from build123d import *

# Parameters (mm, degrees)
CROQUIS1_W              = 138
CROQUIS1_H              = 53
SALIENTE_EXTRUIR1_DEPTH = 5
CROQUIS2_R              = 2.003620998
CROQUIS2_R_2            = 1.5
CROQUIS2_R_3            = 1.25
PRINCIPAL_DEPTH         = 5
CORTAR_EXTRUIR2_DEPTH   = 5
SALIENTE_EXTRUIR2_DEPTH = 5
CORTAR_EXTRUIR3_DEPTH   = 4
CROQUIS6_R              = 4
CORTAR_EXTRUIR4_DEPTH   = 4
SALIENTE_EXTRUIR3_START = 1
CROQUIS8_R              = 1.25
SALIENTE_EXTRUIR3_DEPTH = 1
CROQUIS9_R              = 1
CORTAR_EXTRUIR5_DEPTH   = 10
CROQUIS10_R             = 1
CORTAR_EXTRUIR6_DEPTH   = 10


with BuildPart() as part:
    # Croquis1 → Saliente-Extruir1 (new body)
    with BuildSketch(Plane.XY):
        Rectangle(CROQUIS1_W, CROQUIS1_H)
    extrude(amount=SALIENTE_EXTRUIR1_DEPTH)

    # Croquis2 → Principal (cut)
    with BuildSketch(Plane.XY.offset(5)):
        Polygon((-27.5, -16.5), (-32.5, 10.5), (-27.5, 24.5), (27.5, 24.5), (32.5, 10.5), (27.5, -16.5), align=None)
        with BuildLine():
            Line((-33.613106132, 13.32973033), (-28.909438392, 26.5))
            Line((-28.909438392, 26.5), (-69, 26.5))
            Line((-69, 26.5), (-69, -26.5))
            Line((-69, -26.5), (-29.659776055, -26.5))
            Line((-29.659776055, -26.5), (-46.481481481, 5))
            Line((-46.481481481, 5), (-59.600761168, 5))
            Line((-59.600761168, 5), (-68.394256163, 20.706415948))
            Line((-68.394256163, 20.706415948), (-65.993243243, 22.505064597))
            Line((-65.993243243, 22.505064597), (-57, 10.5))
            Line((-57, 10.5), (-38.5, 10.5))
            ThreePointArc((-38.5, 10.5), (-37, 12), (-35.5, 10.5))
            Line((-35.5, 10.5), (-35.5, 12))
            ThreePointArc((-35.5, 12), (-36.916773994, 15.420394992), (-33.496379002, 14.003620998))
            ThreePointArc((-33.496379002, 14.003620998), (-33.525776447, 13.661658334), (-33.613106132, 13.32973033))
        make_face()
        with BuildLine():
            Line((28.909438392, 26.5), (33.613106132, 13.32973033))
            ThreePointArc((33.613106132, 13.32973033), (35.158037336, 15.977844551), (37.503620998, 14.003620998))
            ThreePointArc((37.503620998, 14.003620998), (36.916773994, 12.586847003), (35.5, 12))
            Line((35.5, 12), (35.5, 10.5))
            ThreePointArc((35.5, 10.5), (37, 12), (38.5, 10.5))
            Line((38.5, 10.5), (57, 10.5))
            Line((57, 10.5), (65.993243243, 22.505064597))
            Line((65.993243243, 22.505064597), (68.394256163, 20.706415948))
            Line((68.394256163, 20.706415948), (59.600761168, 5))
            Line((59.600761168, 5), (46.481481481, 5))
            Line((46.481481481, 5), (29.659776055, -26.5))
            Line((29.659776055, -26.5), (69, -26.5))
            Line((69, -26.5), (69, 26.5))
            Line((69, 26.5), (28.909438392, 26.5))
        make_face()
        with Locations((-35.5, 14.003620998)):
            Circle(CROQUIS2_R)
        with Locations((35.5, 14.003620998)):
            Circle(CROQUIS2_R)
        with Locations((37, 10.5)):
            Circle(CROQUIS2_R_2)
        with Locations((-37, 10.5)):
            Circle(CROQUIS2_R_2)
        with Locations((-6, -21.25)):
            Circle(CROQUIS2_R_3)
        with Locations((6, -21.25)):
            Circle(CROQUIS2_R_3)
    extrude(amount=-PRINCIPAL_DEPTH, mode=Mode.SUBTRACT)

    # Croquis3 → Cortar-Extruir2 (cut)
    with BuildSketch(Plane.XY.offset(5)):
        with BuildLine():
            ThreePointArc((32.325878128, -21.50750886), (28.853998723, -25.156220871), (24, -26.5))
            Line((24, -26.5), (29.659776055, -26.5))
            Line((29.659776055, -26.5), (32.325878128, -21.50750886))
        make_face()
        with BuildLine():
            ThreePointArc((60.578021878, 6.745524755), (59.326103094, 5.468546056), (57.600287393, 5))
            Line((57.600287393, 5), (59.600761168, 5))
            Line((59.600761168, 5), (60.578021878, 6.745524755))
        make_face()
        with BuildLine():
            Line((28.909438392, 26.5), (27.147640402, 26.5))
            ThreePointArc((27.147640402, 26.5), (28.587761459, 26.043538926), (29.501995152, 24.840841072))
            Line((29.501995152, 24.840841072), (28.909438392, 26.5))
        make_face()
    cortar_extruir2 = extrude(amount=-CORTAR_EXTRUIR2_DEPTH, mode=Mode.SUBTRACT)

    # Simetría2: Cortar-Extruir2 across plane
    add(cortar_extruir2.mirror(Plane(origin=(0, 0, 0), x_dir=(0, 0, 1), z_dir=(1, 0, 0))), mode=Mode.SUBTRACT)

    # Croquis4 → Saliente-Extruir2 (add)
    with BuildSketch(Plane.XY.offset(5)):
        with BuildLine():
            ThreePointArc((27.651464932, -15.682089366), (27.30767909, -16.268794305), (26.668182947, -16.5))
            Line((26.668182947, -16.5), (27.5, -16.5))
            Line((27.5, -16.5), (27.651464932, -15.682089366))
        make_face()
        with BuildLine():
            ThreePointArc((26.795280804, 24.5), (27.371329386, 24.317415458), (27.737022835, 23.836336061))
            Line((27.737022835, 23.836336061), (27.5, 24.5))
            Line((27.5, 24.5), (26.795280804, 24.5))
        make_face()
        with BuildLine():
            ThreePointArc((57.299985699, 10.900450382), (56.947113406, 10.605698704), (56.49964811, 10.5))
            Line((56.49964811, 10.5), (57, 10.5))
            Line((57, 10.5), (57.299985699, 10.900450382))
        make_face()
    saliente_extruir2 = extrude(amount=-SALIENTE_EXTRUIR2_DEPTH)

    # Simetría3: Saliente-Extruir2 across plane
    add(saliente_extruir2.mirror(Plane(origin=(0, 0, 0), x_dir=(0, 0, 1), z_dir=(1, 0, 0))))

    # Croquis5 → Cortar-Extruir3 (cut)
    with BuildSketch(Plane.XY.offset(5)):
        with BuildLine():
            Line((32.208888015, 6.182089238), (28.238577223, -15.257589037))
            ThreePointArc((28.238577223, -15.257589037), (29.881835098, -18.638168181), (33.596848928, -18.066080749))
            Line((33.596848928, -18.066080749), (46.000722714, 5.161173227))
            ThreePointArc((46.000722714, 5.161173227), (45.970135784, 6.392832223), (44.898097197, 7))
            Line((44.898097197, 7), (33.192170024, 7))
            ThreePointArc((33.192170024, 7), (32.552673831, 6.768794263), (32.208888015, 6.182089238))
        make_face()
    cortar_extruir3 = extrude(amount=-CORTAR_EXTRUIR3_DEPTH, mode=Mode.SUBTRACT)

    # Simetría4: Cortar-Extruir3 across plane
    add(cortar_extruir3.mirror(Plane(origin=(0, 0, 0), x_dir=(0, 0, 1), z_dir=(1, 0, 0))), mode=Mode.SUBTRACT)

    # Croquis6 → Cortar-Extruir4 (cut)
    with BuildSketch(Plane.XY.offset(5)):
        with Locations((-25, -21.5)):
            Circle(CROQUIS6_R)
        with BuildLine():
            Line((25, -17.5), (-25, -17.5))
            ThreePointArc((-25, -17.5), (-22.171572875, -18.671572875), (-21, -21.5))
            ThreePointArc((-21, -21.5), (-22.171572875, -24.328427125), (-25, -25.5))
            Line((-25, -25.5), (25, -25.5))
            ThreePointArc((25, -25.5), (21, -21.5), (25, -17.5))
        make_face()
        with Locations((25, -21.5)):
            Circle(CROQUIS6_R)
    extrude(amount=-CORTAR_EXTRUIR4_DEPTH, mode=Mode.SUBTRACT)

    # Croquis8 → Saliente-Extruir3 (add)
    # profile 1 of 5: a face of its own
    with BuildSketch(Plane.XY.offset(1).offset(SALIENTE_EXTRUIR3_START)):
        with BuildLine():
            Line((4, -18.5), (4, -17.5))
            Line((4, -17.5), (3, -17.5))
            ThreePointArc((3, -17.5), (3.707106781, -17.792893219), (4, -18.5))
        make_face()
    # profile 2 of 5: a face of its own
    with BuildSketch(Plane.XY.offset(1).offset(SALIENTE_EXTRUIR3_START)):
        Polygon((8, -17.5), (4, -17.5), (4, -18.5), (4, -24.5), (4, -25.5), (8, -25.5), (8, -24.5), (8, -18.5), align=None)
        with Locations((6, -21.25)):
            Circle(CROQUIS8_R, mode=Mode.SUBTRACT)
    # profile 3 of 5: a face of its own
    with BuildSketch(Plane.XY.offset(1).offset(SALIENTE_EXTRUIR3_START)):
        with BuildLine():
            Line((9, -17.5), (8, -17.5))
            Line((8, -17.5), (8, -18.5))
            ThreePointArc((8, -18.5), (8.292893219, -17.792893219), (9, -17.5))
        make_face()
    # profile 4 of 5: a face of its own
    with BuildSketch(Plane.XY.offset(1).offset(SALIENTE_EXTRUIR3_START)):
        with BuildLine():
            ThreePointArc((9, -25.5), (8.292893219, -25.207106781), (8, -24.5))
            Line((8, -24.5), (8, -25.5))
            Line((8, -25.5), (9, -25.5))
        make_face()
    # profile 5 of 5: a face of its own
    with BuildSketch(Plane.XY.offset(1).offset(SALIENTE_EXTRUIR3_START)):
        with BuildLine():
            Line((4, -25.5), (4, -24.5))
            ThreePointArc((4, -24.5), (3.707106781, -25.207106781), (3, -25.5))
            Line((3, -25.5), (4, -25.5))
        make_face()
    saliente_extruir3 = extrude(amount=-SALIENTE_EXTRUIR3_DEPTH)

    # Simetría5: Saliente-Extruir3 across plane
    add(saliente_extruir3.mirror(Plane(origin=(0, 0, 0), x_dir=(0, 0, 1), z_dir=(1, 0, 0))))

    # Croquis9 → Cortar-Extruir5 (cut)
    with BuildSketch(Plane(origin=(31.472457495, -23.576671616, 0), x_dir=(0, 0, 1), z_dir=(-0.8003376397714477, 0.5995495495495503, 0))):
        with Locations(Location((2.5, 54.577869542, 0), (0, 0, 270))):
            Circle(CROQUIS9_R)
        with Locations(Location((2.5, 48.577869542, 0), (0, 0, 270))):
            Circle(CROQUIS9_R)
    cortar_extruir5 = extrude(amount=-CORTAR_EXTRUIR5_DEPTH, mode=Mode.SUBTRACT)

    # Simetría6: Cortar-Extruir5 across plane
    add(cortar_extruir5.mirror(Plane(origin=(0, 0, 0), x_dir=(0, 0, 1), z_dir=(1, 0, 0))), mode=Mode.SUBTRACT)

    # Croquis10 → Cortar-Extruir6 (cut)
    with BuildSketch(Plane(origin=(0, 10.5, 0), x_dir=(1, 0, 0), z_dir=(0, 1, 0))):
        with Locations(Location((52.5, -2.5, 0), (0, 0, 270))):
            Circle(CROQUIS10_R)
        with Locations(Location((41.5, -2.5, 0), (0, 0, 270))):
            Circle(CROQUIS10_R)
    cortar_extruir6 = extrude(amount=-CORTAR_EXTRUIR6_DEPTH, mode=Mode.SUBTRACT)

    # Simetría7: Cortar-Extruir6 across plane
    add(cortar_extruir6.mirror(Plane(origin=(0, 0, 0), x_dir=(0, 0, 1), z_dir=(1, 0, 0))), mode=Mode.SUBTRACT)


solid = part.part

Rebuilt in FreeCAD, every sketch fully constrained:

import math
import FreeCAD as App
import Part
import Sketcher
Q = App.Units.Quantity


def add_polygon(sketch, points):
    """Adds a closed chain of lines whose ends are joined by coincident constraints."""
    first, n = sketch.GeometryCount, len(points)
    for a, b in zip(points, points[1:] + points[:1]):
        sketch.addGeometry(Part.LineSegment(App.Vector(*a, 0), App.Vector(*b, 0)), False)
    for i in range(n):
        sketch.addConstraint(Sketcher.Constraint("Coincident", first + i, 2, first + (i + 1) % n, 1))

doc = App.newDocument("Part")
params = doc.addObject("Spreadsheet::Sheet", "Params")
for row, (alias, value) in enumerate([
    ("sketch1_width", "138 mm"),
    ("sketch1_height", "53 mm"),
    ("pad1_length", "5 mm"),
    ("sketch2_diameter", "2.5 mm"),
    ("sketch2_radius", "1.5 mm"),
    ("sketch2_width", "55 mm"),
    ("sketch2_height", "53 mm"),
    ("sketch2_length", "3 mm"),
    ("pocket1_length", "5 mm"),
    ("sketch3_radius", "2.5 mm"),
    ("pocket2_length", "5 mm"),
    ("sketch4_radius", "1 mm"),
    ("pad2_length", "5 mm"),
    ("sketch5_radius", "1 mm"),
    ("sketch5_radius2", "1.25 mm"),
    ("pocket3_length", "4 mm"),
    ("sketch6_radius", "4 mm"),
    ("sketch6_width", "50 mm"),
    ("pocket4_length", "4 mm"),
    ("sketch7_radius", "1 mm"),
    ("sketch7_diameter", "2.5 mm"),
    ("sketch7_width", "6 mm"),
    ("pad3_length", "1 mm"),
    ("sketch8_diameter", "2 mm"),
    ("pocket5_length", "10 mm"),
    ("sketch9_diameter", "2 mm"),
    ("pocket6_length", "10 mm"),
], start=1):
    params.set(f"A{row}", alias)
    params.set(f"B{row}", "=" + value)
    params.setAlias(f"B{row}", alias)

body = doc.addObject("PartDesign::Body", "Body")

# Sketch on XY plane
sketch1 = body.newObject("Sketcher::SketchObject", "Sketch")
sketch1.AttachmentSupport = (doc.getObject("XY_Plane"), [""])
sketch1.MapMode = "FlatFace"
add_polygon(sketch1, [(-69, 26), (-69, -26), (69, -26), (69, 26)])  # lines 0-3
sketch1.addConstraint(Sketcher.Constraint("Vertical", 0))
sketch1.addConstraint(Sketcher.Constraint("Horizontal", 1))
sketch1.addConstraint(Sketcher.Constraint("Vertical", 2))
sketch1.addConstraint(Sketcher.Constraint("Horizontal", 3))
sketch1.addConstraint(Sketcher.Constraint("Symmetric", 0, 2, 2, 2, -1, 1))
sketch1.addConstraint(Sketcher.Constraint("DistanceX", 1, 1, 1, 2, Q("138 mm")))
sketch1.addConstraint(Sketcher.Constraint("DistanceY", 0, 2, 0, 1, Q("53 mm")))
sketch1.setExpression("Constraints[9]", "Params.sketch1_width")
sketch1.setExpression("Constraints[10]", "Params.sketch1_height")
pad1 = body.newObject("PartDesign::Pad", "Pad")
pad1.Profile = sketch1
pad1.setExpression("Length", "Params.pad1_length")

# Sketch on XY plane
sketch2 = body.newObject("Sketcher::SketchObject", "Sketch001")
sketch2.AttachmentSupport = (doc.getObject("XY_Plane"), [""])
sketch2.MapMode = "FlatFace"
sketch2.AttachmentOffset = App.Placement(App.Vector(0, 0, 5), App.Rotation())
add_polygon(sketch2, [(-32.5, 10.5), (-27.5, -16.5), (27.5, -16.5), (32.5, 10.5), (27.5, 24.5), (-27.5, 24.5)])  # lines 0-5
sketch2.addGeometry(Part.LineSegment(App.Vector(-33.6, 13.3, 0), App.Vector(-28.9, 26.5, 0)), False)  # 6
sketch2.addGeometry(Part.LineSegment(App.Vector(-28.9, 26.5, 0), App.Vector(-69, 26.5, 0)), False)  # 7
sketch2.addGeometry(Part.LineSegment(App.Vector(-69, 26.5, 0), App.Vector(-69, -26.5, 0)), False)  # 8
sketch2.addGeometry(Part.LineSegment(App.Vector(-69, -26.5, 0), App.Vector(-29.7, -26.5, 0)), False)  # 9
sketch2.addGeometry(Part.LineSegment(App.Vector(-29.7, -26.5, 0), App.Vector(-46.5, 5, 0)), False)  # 10
sketch2.addGeometry(Part.LineSegment(App.Vector(-46.5, 5, 0), App.Vector(-59.6, 5, 0)), False)  # 11
sketch2.addGeometry(Part.LineSegment(App.Vector(-59.6, 5, 0), App.Vector(-68.4, 20.7, 0)), False)  # 12
sketch2.addGeometry(Part.LineSegment(App.Vector(-68.4, 20.7, 0), App.Vector(-66, 22.5, 0)), False)  # 13
sketch2.addGeometry(Part.LineSegment(App.Vector(-66, 22.5, 0), App.Vector(-57, 10.5, 0)), False)  # 14
sketch2.addGeometry(Part.LineSegment(App.Vector(-57, 10.5, 0), App.Vector(-38.5, 10.5, 0)), False)  # 15
sketch2.addGeometry(Part.ArcOfCircle(Part.Circle(App.Vector(-37, 10.5, 0), App.Vector(0, 0, 1), 1.5), math.radians(180), math.radians(360)), False)  # 16
sketch2.addGeometry(Part.LineSegment(App.Vector(-35.5, 10.5, 0), App.Vector(-35.5, 12, 0)), False)  # 17
sketch2.addGeometry(Part.ArcOfCircle(Part.Circle(App.Vector(-35.5, 14, 0), App.Vector(0, 0, 1), 2), math.radians(-90), math.radians(-20)), False)  # 18
sketch2.addGeometry(Part.LineSegment(App.Vector(28.9, 26.5, 0), App.Vector(33.6, 13.3, 0)), False)  # 19
sketch2.addGeometry(Part.ArcOfCircle(Part.Circle(App.Vector(35.5, 14, 0), App.Vector(0, 0, 1), 2), math.radians(-160), math.radians(-90)), False)  # 20
sketch2.addGeometry(Part.LineSegment(App.Vector(35.5, 12, 0), App.Vector(35.5, 10.5, 0)), False)  # 21
sketch2.addGeometry(Part.ArcOfCircle(Part.Circle(App.Vector(37, 10.5, 0), App.Vector(0, 0, 1), 1.5), math.radians(180), math.radians(360)), False)  # 22
sketch2.addGeometry(Part.LineSegment(App.Vector(38.5, 10.5, 0), App.Vector(57, 10.5, 0)), False)  # 23
sketch2.addGeometry(Part.LineSegment(App.Vector(57, 10.5, 0), App.Vector(66, 22.5, 0)), False)  # 24
sketch2.addGeometry(Part.LineSegment(App.Vector(66, 22.5, 0), App.Vector(68.4, 20.7, 0)), False)  # 25
sketch2.addGeometry(Part.LineSegment(App.Vector(68.4, 20.7, 0), App.Vector(59.6, 5, 0)), False)  # 26
sketch2.addGeometry(Part.LineSegment(App.Vector(59.6, 5, 0), App.Vector(46.5, 5, 0)), False)  # 27
sketch2.addGeometry(Part.LineSegment(App.Vector(46.5, 5, 0), App.Vector(29.7, -26.5, 0)), False)  # 28
sketch2.addGeometry(Part.LineSegment(App.Vector(29.7, -26.5, 0), App.Vector(69, -26.5, 0)), False)  # 29
sketch2.addGeometry(Part.LineSegment(App.Vector(69, -26.5, 0), App.Vector(69, 26.5, 0)), False)  # 30
sketch2.addGeometry(Part.LineSegment(App.Vector(69, 26.5, 0), App.Vector(28.9, 26.5, 0)), False)  # 31
sketch2.addGeometry(Part.Circle(App.Vector(-6, -21.2, 0), App.Vector(0, 0, 1), 1.2), False)  # 32
sketch2.addGeometry(Part.Circle(App.Vector(6, -21.2, 0), App.Vector(0, 0, 1), 1.2), False)  # 33
sketch2.addConstraint(Sketcher.Constraint("Coincident", 6, 2, 7, 1))
sketch2.addConstraint(Sketcher.Constraint("Coincident", 7, 2, 8, 1))
sketch2.addConstraint(Sketcher.Constraint("Coincident", 8, 2, 9, 1))
sketch2.addConstraint(Sketcher.Constraint("Coincident", 9, 2, 10, 1))
sketch2.addConstraint(Sketcher.Constraint("Coincident", 10, 2, 11, 1))
sketch2.addConstraint(Sketcher.Constraint("Coincident", 11, 2, 12, 1))
sketch2.addConstraint(Sketcher.Constraint("Coincident", 12, 2, 13, 1))
sketch2.addConstraint(Sketcher.Constraint("Coincident", 13, 2, 14, 1))
sketch2.addConstraint(Sketcher.Constraint("Coincident", 14, 2, 15, 1))
sketch2.addConstraint(Sketcher.Constraint("Coincident", 15, 2, 16, 1))
sketch2.addConstraint(Sketcher.Constraint("Tangent", 16, 2, 17, 1))
sketch2.addConstraint(Sketcher.Constraint("Coincident", 17, 2, 18, 1))
sketch2.addConstraint(Sketcher.Constraint("Tangent", 18, 2, 6, 1))
sketch2.addConstraint(Sketcher.Constraint("Tangent", 19, 2, 20, 1))
sketch2.addConstraint(Sketcher.Constraint("Coincident", 20, 2, 21, 1))
sketch2.addConstraint(Sketcher.Constraint("Tangent", 21, 2, 22, 1))
sketch2.addConstraint(Sketcher.Constraint("Coincident", 22, 2, 23, 1))
sketch2.addConstraint(Sketcher.Constraint("Coincident", 23, 2, 24, 1))
sketch2.addConstraint(Sketcher.Constraint("Coincident", 24, 2, 25, 1))
sketch2.addConstraint(Sketcher.Constraint("Coincident", 25, 2, 26, 1))
sketch2.addConstraint(Sketcher.Constraint("Coincident", 26, 2, 27, 1))
sketch2.addConstraint(Sketcher.Constraint("Coincident", 27, 2, 28, 1))
sketch2.addConstraint(Sketcher.Constraint("Coincident", 28, 2, 29, 1))
sketch2.addConstraint(Sketcher.Constraint("Coincident", 29, 2, 30, 1))
sketch2.addConstraint(Sketcher.Constraint("Coincident", 30, 2, 31, 1))
sketch2.addConstraint(Sketcher.Constraint("Coincident", 31, 2, 19, 1))
sketch2.addConstraint(Sketcher.Constraint("Horizontal", 1))
sketch2.addConstraint(Sketcher.Constraint("Horizontal", 4))
sketch2.addConstraint(Sketcher.Constraint("Horizontal", 7))
sketch2.addConstraint(Sketcher.Constraint("Vertical", 8))
sketch2.addConstraint(Sketcher.Constraint("Horizontal", 9))
sketch2.addConstraint(Sketcher.Constraint("Horizontal", 11))
sketch2.addConstraint(Sketcher.Constraint("Horizontal", 15))
sketch2.addConstraint(Sketcher.Constraint("Vertical", 17))
sketch2.addConstraint(Sketcher.Constraint("Vertical", 21))
sketch2.addConstraint(Sketcher.Constraint("Horizontal", 23))
sketch2.addConstraint(Sketcher.Constraint("Horizontal", 27))
sketch2.addConstraint(Sketcher.Constraint("Horizontal", 29))
sketch2.addConstraint(Sketcher.Constraint("Vertical", 30))
sketch2.addConstraint(Sketcher.Constraint("Horizontal", 31))
sketch2.addConstraint(Sketcher.Constraint("Equal", 18, 20))
sketch2.addConstraint(Sketcher.Constraint("Equal", 16, 22))
sketch2.addConstraint(Sketcher.Constraint("Equal", 32, 33))
sketch2.addConstraint(Sketcher.Constraint("Symmetric", 7, 2, 29, 2, -1, 1))
sketch2.addConstraint(Sketcher.Constraint("Symmetric", 18, 3, 20, 3, -2))
sketch2.addConstraint(Sketcher.Constraint("Symmetric", 16, 3, 22, 3, -2))
sketch2.addConstraint(Sketcher.Constraint("Symmetric", 32, 3, 33, 3, -2))
sketch2.addConstraint(Sketcher.Constraint("Symmetric", 2, 2, 5, 2, -2))
sketch2.addConstraint(Sketcher.Constraint("Symmetric", 14, 2, 23, 2, -2))
sketch2.addConstraint(Sketcher.Constraint("Symmetric", 13, 2, 24, 2, -2))
sketch2.addConstraint(Sketcher.Constraint("Symmetric", 12, 2, 25, 2, -2))
sketch2.addConstraint(Sketcher.Constraint("Symmetric", 11, 2, 26, 2, -2))
sketch2.addConstraint(Sketcher.Constraint("Symmetric", 9, 2, 28, 2, -2))
sketch2.addConstraint(Sketcher.Constraint("Symmetric", 6, 2, 31, 2, -2))
sketch2.addConstraint(Sketcher.Constraint("Parallel", 5, 6))
sketch2.addConstraint(Sketcher.Constraint("Perpendicular", 13, 14))
sketch2.addConstraint(Sketcher.Constraint("Parallel", 3, 19))
sketch2.addConstraint(Sketcher.Constraint("Horizontal", 22, 3, 2, 2))
sketch2.addConstraint(Sketcher.Constraint("Horizontal", 5, 2, 14, 2))
sketch2.addConstraint(Sketcher.Constraint("Vertical", 1, 2, 3, 2))
sketch2.addConstraint(Sketcher.Constraint("Vertical", 0, 2, 4, 2))
sketch2.addConstraint(Sketcher.Constraint("Vertical", 18, 3, 16, 2))
sketch2.addConstraint(Sketcher.Constraint("Equal", 11, 27))
sketch2.addConstraint(Sketcher.Constraint("Diameter", 32, Q("2.5 mm")))
sketch2.addConstraint(Sketcher.Constraint("Radius", 16, Q("1.5 mm")))
sketch2.addConstraint(Sketcher.Constraint("DistanceX", 1, 1, 1, 2, Q("55 mm")))
sketch2.addConstraint(Sketcher.Constraint("DistanceY", 8, 2, 8, 1, Q("53 mm")))
sketch2.addConstraint(Sketcher.Constraint("Distance", 13, Q("3 mm")))
sketch2.addConstraint(Sketcher.Constraint("Distance", 14, Q("15 mm")))
sketch2.addConstraint(Sketcher.Constraint("DistanceX", 15, 1, 15, 2, Q("18.5 mm")))
sketch2.addConstraint(Sketcher.Constraint("DistanceY", 17, 1, 17, 2, Q("1.5 mm")))
sketch2.addConstraint(Sketcher.Constraint("DistanceX", 16, 3, -1, 1, Q("37 mm")))
sketch2.addConstraint(Sketcher.Constraint("DistanceX", 32, 3, -1, 1, Q("6 mm")))
sketch2.addConstraint(Sketcher.Constraint("DistanceX", 7, 2, -1, 1, Q("69 mm")))
sketch2.addConstraint(Sketcher.Constraint("DistanceY", -1, 1, 10, 2, Q("5 mm")))
sketch2.addConstraint(Sketcher.Constraint("DistanceY", -1, 1, 17, 2, Q("12 mm")))
sketch2.addConstraint(Sketcher.Constraint("DistanceY", 0, 2, 16, 3, Q("27 mm")))
sketch2.addConstraint(Sketcher.Constraint("DistanceX", 2, 2, 20, 3, Q("3 mm")))
sketch2.addConstraint(Sketcher.Constraint("DistanceY", 2, 2, 3, 2, Q("14 mm")))
sketch2.addConstraint(Sketcher.Constraint("DistanceY", 32, 3, -1, 1, Q("21.25 mm")))
sketch2.addConstraint(Sketcher.Constraint("Radius", 18, Q("2.003621 mm")))
sketch2.addConstraint(Sketcher.Constraint("DistanceX", 11, 2, 11, 1, Q("13.11928 mm")))
sketch2.addConstraint(Sketcher.Constraint("Distance", 10, Q("35.710219 mm")))
sketch2.addConstraint(Sketcher.Constraint("DistanceX", 9, 1, 9, 2, Q("39.340224 mm")))
sketch2.addConstraint(Sketcher.Constraint("DistanceY", 12, 2, 13, 2, Q("1.798649 mm")))
sketch2.setExpression("Constraints[69]", "Params.sketch2_diameter")
sketch2.setExpression("Constraints[70]", "Params.sketch2_radius")
sketch2.setExpression("Constraints[71]", "Params.sketch2_width")
sketch2.setExpression("Constraints[72]", "Params.sketch2_height")
sketch2.setExpression("Constraints[73]", "Params.sketch2_length")
pocket1 = body.newObject("PartDesign::Pocket", "Pocket")
pocket1.Profile = sketch2
pocket1.setExpression("Length", "Params.pocket1_length")

# Sketch on XY plane
sketch3 = body.newObject("Sketcher::SketchObject", "Sketch002")
sketch3.AttachmentSupport = (doc.getObject("XY_Plane"), [""])
sketch3.MapMode = "FlatFace"
sketch3.AttachmentOffset = App.Placement(App.Vector(0, 0, 5), App.Rotation())
sketch3.addGeometry(Part.ArcOfCircle(Part.Circle(App.Vector(24, -17.1, 0), App.Vector(0, 0, 1), 9.4), math.radians(-90), math.radians(-28)), False)
sketch3.addGeometry(Part.LineSegment(App.Vector(24, -26.5, 0), App.Vector(29.7, -26.5, 0)), False)
sketch3.addGeometry(Part.LineSegment(App.Vector(29.7, -26.5, 0), App.Vector(32.3, -21.5, 0)), False)
sketch3.addGeometry(Part.ArcOfCircle(Part.Circle(App.Vector(57.6, 8.4, 0), App.Vector(0, 0, 1), 3.4), math.radians(-90), math.radians(-29)), False)
sketch3.addGeometry(Part.LineSegment(App.Vector(57.6, 5, 0), App.Vector(59.6, 5, 0)), False)
sketch3.addGeometry(Part.LineSegment(App.Vector(59.6, 5, 0), App.Vector(60.6, 6.7, 0)), False)
sketch3.addGeometry(Part.LineSegment(App.Vector(28.9, 26.5, 0), App.Vector(27.1, 26.5, 0)), False)
sketch3.addGeometry(Part.ArcOfCircle(Part.Circle(App.Vector(27.1, 24, 0), App.Vector(0, 0, 1), 2.5), math.radians(20), math.radians(90)), False)
sketch3.addGeometry(Part.LineSegment(App.Vector(29.5, 24.8, 0), App.Vector(28.9, 26.5, 0)), False)
sketch3.addConstraint(Sketcher.Constraint("Tangent", 0, 1, 1, 1))
sketch3.addConstraint(Sketcher.Constraint("Coincident", 1, 2, 2, 1))
sketch3.addConstraint(Sketcher.Constraint("Tangent", 2, 2, 0, 2))
sketch3.addConstraint(Sketcher.Constraint("Tangent", 3, 1, 4, 1))
sketch3.addConstraint(Sketcher.Constraint("Coincident", 4, 2, 5, 1))
sketch3.addConstraint(Sketcher.Constraint("Tangent", 5, 2, 3, 2))
sketch3.addConstraint(Sketcher.Constraint("Tangent", 6, 2, 7, 2))
sketch3.addConstraint(Sketcher.Constraint("Tangent", 7, 1, 8, 1))
sketch3.addConstraint(Sketcher.Constraint("Coincident", 8, 2, 6, 1))
sketch3.addConstraint(Sketcher.Constraint("Horizontal", 1))
sketch3.addConstraint(Sketcher.Constraint("Horizontal", 4))
sketch3.addConstraint(Sketcher.Constraint("Horizontal", 6))
sketch3.addConstraint(Sketcher.Constraint("Radius", 7, Q("2.5 mm")))
sketch3.addConstraint(Sketcher.Constraint("DistanceX", -1, 1, 0, 3, Q("24 mm")))
sketch3.addConstraint(Sketcher.Constraint("DistanceY", -1, 1, 7, 3, Q("24 mm")))
sketch3.addConstraint(Sketcher.Constraint("DistanceY", -1, 1, 3, 1, Q("5 mm")))
sketch3.addConstraint(Sketcher.Constraint("DistanceY", 0, 1, -1, 1, Q("26.5 mm")))
sketch3.addConstraint(Sketcher.Constraint("Radius", 3, Q("3.412658 mm")))
sketch3.addConstraint(Sketcher.Constraint("Radius", 0, Q("9.438696 mm")))
sketch3.addConstraint(Sketcher.Constraint("DistanceX", 1, 1, 1, 2, Q("5.659776 mm")))
sketch3.addConstraint(Sketcher.Constraint("DistanceX", 4, 1, 4, 2, Q("2.000474 mm")))
sketch3.addConstraint(Sketcher.Constraint("DistanceX", 6, 2, 6, 1, Q("1.761798 mm")))
sketch3.addConstraint(Sketcher.Constraint("DistanceX", -1, 1, 7, 3, Q("27.14764 mm")))
sketch3.addConstraint(Sketcher.Constraint("DistanceX", -1, 1, 4, 2, Q("59.600761 mm")))
sketch3.setExpression("Constraints[12]", "Params.sketch3_radius")
pocket2 = body.newObject("PartDesign::Pocket", "Pocket001")
pocket2.Profile = sketch3
pocket2.setExpression("Length", "Params.pocket2_length")
doc.recompute()

mirrored = body.newObject("PartDesign::Mirrored", "Mirrored")
mirrored.Originals = [pocket2]
mirrored.MirrorPlane = (doc.getObject("YZ_Plane"), [""])
body.Tip = mirrored

# Sketch on XY plane
sketch4 = body.newObject("Sketcher::SketchObject", "Sketch003")
sketch4.AttachmentSupport = (doc.getObject("XY_Plane"), [""])
sketch4.MapMode = "FlatFace"
sketch4.AttachmentOffset = App.Placement(App.Vector(0, 0, 5), App.Rotation())
sketch4.addGeometry(Part.ArcOfCircle(Part.Circle(App.Vector(26.7, -15.5, 0), App.Vector(0, 0, 1), 1), math.radians(-90), math.radians(-10)), False)
sketch4.addGeometry(Part.LineSegment(App.Vector(26.7, -16.5, 0), App.Vector(27.5, -16.5, 0)), False)
sketch4.addGeometry(Part.LineSegment(App.Vector(27.5, -16.5, 0), App.Vector(27.7, -15.7, 0)), False)
sketch4.addGeometry(Part.ArcOfCircle(Part.Circle(App.Vector(26.8, 23.5, 0), App.Vector(0, 0, 1), 1), math.radians(20), math.radians(90)), False)
sketch4.addGeometry(Part.LineSegment(App.Vector(27.7, 23.8, 0), App.Vector(27.5, 24.5, 0)), False)
sketch4.addGeometry(Part.LineSegment(App.Vector(27.5, 24.5, 0), App.Vector(26.8, 24.5, 0)), False)
sketch4.addGeometry(Part.ArcOfCircle(Part.Circle(App.Vector(56.5, 11.5, 0), App.Vector(0, 0, 1), 1), math.radians(-90), math.radians(-37)), False)
sketch4.addGeometry(Part.LineSegment(App.Vector(56.5, 10.5, 0), App.Vector(57, 10.5, 0)), False)
sketch4.addGeometry(Part.LineSegment(App.Vector(57, 10.5, 0), App.Vector(57.3, 10.9, 0)), False)
sketch4.addConstraint(Sketcher.Constraint("Tangent", 0, 1, 1, 1))
sketch4.addConstraint(Sketcher.Constraint("Coincident", 1, 2, 2, 1))
sketch4.addConstraint(Sketcher.Constraint("Tangent", 2, 2, 0, 2))
sketch4.addConstraint(Sketcher.Constraint("Tangent", 3, 1, 4, 1))
sketch4.addConstraint(Sketcher.Constraint("Coincident", 4, 2, 5, 1))
sketch4.addConstraint(Sketcher.Constraint("Tangent", 5, 2, 3, 2))
sketch4.addConstraint(Sketcher.Constraint("Tangent", 6, 1, 7, 1))
sketch4.addConstraint(Sketcher.Constraint("Coincident", 7, 2, 8, 1))
sketch4.addConstraint(Sketcher.Constraint("Tangent", 8, 2, 6, 2))
sketch4.addConstraint(Sketcher.Constraint("Horizontal", 1))
sketch4.addConstraint(Sketcher.Constraint("Horizontal", 5))
sketch4.addConstraint(Sketcher.Constraint("Horizontal", 7))
sketch4.addConstraint(Sketcher.Constraint("Equal", 0, 3))
sketch4.addConstraint(Sketcher.Constraint("Equal", 3, 6))
sketch4.addConstraint(Sketcher.Constraint("Vertical", 1, 2, 4, 2))
sketch4.addConstraint(Sketcher.Constraint("Radius", 0, Q("1 mm")))
sketch4.addConstraint(Sketcher.Constraint("DistanceX", -1, 1, 7, 2, Q("57 mm")))
sketch4.addConstraint(Sketcher.Constraint("DistanceY", 0, 3, 3, 3, Q("39 mm")))
sketch4.addConstraint(Sketcher.Constraint("DistanceY", 6, 3, 3, 3, Q("12 mm")))
sketch4.addConstraint(Sketcher.Constraint("DistanceY", 0, 3, -1, 1, Q("15.5 mm")))
sketch4.addConstraint(Sketcher.Constraint("DistanceX", -1, 1, 1, 2, Q("27.5 mm")))
sketch4.addConstraint(Sketcher.Constraint("DistanceX", 5, 2, 5, 1, Q("0.704719 mm")))
sketch4.addConstraint(Sketcher.Constraint("DistanceX", 7, 1, 7, 2, Q("0.500352 mm")))
sketch4.addConstraint(Sketcher.Constraint("DistanceX", 1, 1, 1, 2, Q("0.831817 mm")))
sketch4.setExpression("Constraints[15]", "Params.sketch4_radius")
pad2 = body.newObject("PartDesign::Pad", "Pad001")
pad2.Profile = sketch4
pad2.setExpression("Length", "Params.pad2_length")
pad2.Reversed = True
doc.recompute()

mirrored2 = body.newObject("PartDesign::Mirrored", "Mirrored001")
mirrored2.Originals = [pad2]
mirrored2.MirrorPlane = (doc.getObject("YZ_Plane"), [""])
body.Tip = mirrored2

# Sketch on XY plane
sketch5 = body.newObject("Sketcher::SketchObject", "Sketch004")
sketch5.AttachmentSupport = (doc.getObject("XY_Plane"), [""])
sketch5.MapMode = "FlatFace"
sketch5.AttachmentOffset = App.Placement(App.Vector(0, 0, 5), App.Rotation())
sketch5.addGeometry(Part.LineSegment(App.Vector(32.2, 6.2, 0), App.Vector(28.2, -15.3, 0)), False)
sketch5.addGeometry(Part.ArcOfCircle(Part.Circle(App.Vector(31.4, -15.8, 0), App.Vector(0, 0, 1), 3.2), math.radians(170), math.radians(315)), False)
sketch5.addGeometry(Part.LineSegment(App.Vector(33.6, -18.1, 0), App.Vector(46, 5.2, 0)), False)
sketch5.addGeometry(Part.ArcOfCircle(Part.Circle(App.Vector(44.9, 5.8, 0), App.Vector(0, 0, 1), 1.2), math.radians(-28), math.radians(90)), False)
sketch5.addGeometry(Part.LineSegment(App.Vector(44.9, 7, 0), App.Vector(33.2, 7, 0)), False)
sketch5.addGeometry(Part.ArcOfCircle(Part.Circle(App.Vector(33.2, 6, 0), App.Vector(0, 0, 1), 1), math.radians(90), math.radians(170)), False)
sketch5.addConstraint(Sketcher.Constraint("Tangent", 0, 2, 1, 1))
sketch5.addConstraint(Sketcher.Constraint("Coincident", 1, 2, 2, 1))
sketch5.addConstraint(Sketcher.Constraint("Tangent", 2, 2, 3, 1))
sketch5.addConstraint(Sketcher.Constraint("Tangent", 3, 2, 4, 1))
sketch5.addConstraint(Sketcher.Constraint("Tangent", 4, 2, 5, 1))
sketch5.addConstraint(Sketcher.Constraint("Tangent", 5, 2, 0, 1))
sketch5.addConstraint(Sketcher.Constraint("Horizontal", 4))
sketch5.addConstraint(Sketcher.Constraint("Radius", 5, Q("1 mm")))
sketch5.addConstraint(Sketcher.Constraint("Radius", 3, Q("1.25 mm")))
sketch5.addConstraint(Sketcher.Constraint("DistanceY", -1, 1, 5, 3, Q("6 mm")))
sketch5.addConstraint(Sketcher.Constraint("Radius", 1, Q("3.165929 mm")))
sketch5.addConstraint(Sketcher.Constraint("DistanceX", 0, 2, 1, 3, Q("3.113001 mm")))
sketch5.addConstraint(Sketcher.Constraint("Distance", 0, Q("21.804201 mm")))
sketch5.addConstraint(Sketcher.Constraint("DistanceX", 4, 2, 4, 1, Q("11.705927 mm")))
sketch5.addConstraint(Sketcher.Constraint("DistanceX", -1, 1, 1, 3, Q("31.351578 mm")))
sketch5.addConstraint(Sketcher.Constraint("DistanceX", -1, 1, 1, 2, Q("33.596849 mm")))
sketch5.setExpression("Constraints[7]", "Params.sketch5_radius")
sketch5.setExpression("Constraints[8]", "Params.sketch5_radius2")
pocket3 = body.newObject("PartDesign::Pocket", "Pocket002")
pocket3.Profile = sketch5
pocket3.setExpression("Length", "Params.pocket3_length")
doc.recompute()

mirrored3 = body.newObject("PartDesign::Mirrored", "Mirrored002")
mirrored3.Originals = [pocket3]
mirrored3.MirrorPlane = (doc.getObject("YZ_Plane"), [""])
body.Tip = mirrored3

# Sketch on XY plane
sketch6 = body.newObject("Sketcher::SketchObject", "Sketch005")
sketch6.AttachmentSupport = (doc.getObject("XY_Plane"), [""])
sketch6.MapMode = "FlatFace"
sketch6.AttachmentOffset = App.Placement(App.Vector(0, 0, 5), App.Rotation())
sketch6.addGeometry(Part.ArcOfCircle(Part.Circle(App.Vector(-25, -21.5, 0), App.Vector(0, 0, 1), 4), math.radians(90), math.radians(270)), False)
sketch6.addGeometry(Part.LineSegment(App.Vector(-25, -25.5, 0), App.Vector(25, -25.5, 0)), False)
sketch6.addGeometry(Part.ArcOfCircle(Part.Circle(App.Vector(25, -21.5, 0), App.Vector(0, 0, 1), 4), math.radians(-90), math.radians(90)), False)
sketch6.addGeometry(Part.LineSegment(App.Vector(25, -17.5, 0), App.Vector(-25, -17.5, 0)), False)
sketch6.addConstraint(Sketcher.Constraint("Tangent", 0, 2, 1, 1))
sketch6.addConstraint(Sketcher.Constraint("Tangent", 1, 2, 2, 1))
sketch6.addConstraint(Sketcher.Constraint("Tangent", 2, 2, 3, 1))
sketch6.addConstraint(Sketcher.Constraint("Tangent", 3, 2, 0, 1))
sketch6.addConstraint(Sketcher.Constraint("Horizontal", 1))
sketch6.addConstraint(Sketcher.Constraint("Horizontal", 3))
sketch6.addConstraint(Sketcher.Constraint("Radius", 0, Q("4 mm")))
sketch6.addConstraint(Sketcher.Constraint("DistanceX", 1, 1, 1, 2, Q("50 mm")))
sketch6.addConstraint(Sketcher.Constraint("DistanceX", 0, 3, -1, 1, Q("25 mm")))
sketch6.addConstraint(Sketcher.Constraint("DistanceY", 0, 3, -1, 1, Q("21.5 mm")))
sketch6.setExpression("Constraints[6]", "Params.sketch6_radius")
sketch6.setExpression("Constraints[7]", "Params.sketch6_width")
pocket4 = body.newObject("PartDesign::Pocket", "Pocket003")
pocket4.Profile = sketch6
pocket4.setExpression("Length", "Params.pocket4_length")

# Sketch on XY plane
sketch7 = body.newObject("Sketcher::SketchObject", "Sketch006")
sketch7.AttachmentSupport = (doc.getObject("XY_Plane"), [""])
sketch7.MapMode = "FlatFace"
sketch7.AttachmentOffset = App.Placement(App.Vector(0, 0, 2), App.Rotation())
sketch7.addGeometry(Part.ArcOfCircle(Part.Circle(App.Vector(3, -18.5, 0), App.Vector(0, 0, 1), 1), math.radians(0), math.radians(90)), False)
sketch7.addGeometry(Part.LineSegment(App.Vector(4, -18.5, 0), App.Vector(4, -24.5, 0)), False)
sketch7.addGeometry(Part.ArcOfCircle(Part.Circle(App.Vector(3, -24.5, 0), App.Vector(0, 0, 1), 1), math.radians(-90), math.radians(0)), False)
sketch7.addGeometry(Part.LineSegment(App.Vector(3, -25.5, 0), App.Vector(9, -25.5, 0)), False)
sketch7.addGeometry(Part.ArcOfCircle(Part.Circle(App.Vector(9, -24.5, 0), App.Vector(0, 0, 1), 1), math.radians(-180), math.radians(-90)), False)
sketch7.addGeometry(Part.LineSegment(App.Vector(8, -24.5, 0), App.Vector(8, -18.5, 0)), False)
sketch7.addGeometry(Part.ArcOfCircle(Part.Circle(App.Vector(9, -18.5, 0), App.Vector(0, 0, 1), 1), math.radians(90), math.radians(180)), False)
sketch7.addGeometry(Part.LineSegment(App.Vector(9, -17.5, 0), App.Vector(3, -17.5, 0)), False)
sketch7.addGeometry(Part.Circle(App.Vector(6, -21.2, 0), App.Vector(0, 0, 1), 1.2), False)
sketch7.addConstraint(Sketcher.Constraint("Tangent", 0, 1, 1, 1))
sketch7.addConstraint(Sketcher.Constraint("Tangent", 1, 2, 2, 2))
sketch7.addConstraint(Sketcher.Constraint("Tangent", 2, 1, 3, 1))
sketch7.addConstraint(Sketcher.Constraint("Tangent", 3, 2, 4, 2))
sketch7.addConstraint(Sketcher.Constraint("Tangent", 4, 1, 5, 1))
sketch7.addConstraint(Sketcher.Constraint("Tangent", 5, 2, 6, 2))
sketch7.addConstraint(Sketcher.Constraint("Tangent", 6, 1, 7, 1))
sketch7.addConstraint(Sketcher.Constraint("Tangent", 7, 2, 0, 2))
sketch7.addConstraint(Sketcher.Constraint("Vertical", 1))
sketch7.addConstraint(Sketcher.Constraint("Horizontal", 3))
sketch7.addConstraint(Sketcher.Constraint("Vertical", 5))
sketch7.addConstraint(Sketcher.Constraint("Horizontal", 7))
sketch7.addConstraint(Sketcher.Constraint("Equal", 0, 2))
sketch7.addConstraint(Sketcher.Constraint("Equal", 2, 4))
sketch7.addConstraint(Sketcher.Constraint("Equal", 4, 6))
sketch7.addConstraint(Sketcher.Constraint("Equal", 7, 1))
sketch7.addConstraint(Sketcher.Constraint("Radius", 0, Q("1 mm")))
sketch7.addConstraint(Sketcher.Constraint("Diameter", 8, Q("2.5 mm")))
sketch7.addConstraint(Sketcher.Constraint("DistanceX", 3, 1, 3, 2, Q("6 mm")))
sketch7.addConstraint(Sketcher.Constraint("DistanceX", -1, 1, 0, 3, Q("3 mm")))
sketch7.addConstraint(Sketcher.Constraint("DistanceX", -1, 1, 8, 3, Q("6 mm")))
sketch7.addConstraint(Sketcher.Constraint("DistanceY", 0, 3, -1, 1, Q("18.5 mm")))
sketch7.addConstraint(Sketcher.Constraint("DistanceY", 8, 3, -1, 1, Q("21.25 mm")))
sketch7.setExpression("Constraints[16]", "Params.sketch7_radius")
sketch7.setExpression("Constraints[17]", "Params.sketch7_diameter")
sketch7.setExpression("Constraints[18]", "Params.sketch7_width")
pad3 = body.newObject("PartDesign::Pad", "Pad002")
pad3.Profile = sketch7
pad3.setExpression("Length", "Params.pad3_length")
pad3.Reversed = True
doc.recompute()

mirrored4 = body.newObject("PartDesign::Mirrored", "Mirrored003")
mirrored4.Originals = [pad3]
mirrored4.MirrorPlane = (doc.getObject("YZ_Plane"), [""])
body.Tip = mirrored4

# Sketch on an angled plane
sketch8 = body.newObject("Sketcher::SketchObject", "Sketch007")
sketch8.Placement = App.Placement(App.Vector(31.472457, -23.576672, 0), App.Rotation(App.Vector(0, 0, 1), App.Vector(0.59954955, 0.80033764, 0), App.Vector(-0.80033764, 0.59954955, 0), "ZXY"))
sketch8.addGeometry(Part.Circle(App.Vector(2.5, 54.6, 0), App.Vector(0, 0, 1), 1), False)
sketch8.addGeometry(Part.Circle(App.Vector(2.5, 48.6, 0), App.Vector(0, 0, 1), 1), False)
sketch8.addConstraint(Sketcher.Constraint("Equal", 0, 1))
sketch8.addConstraint(Sketcher.Constraint("Vertical", 0, 3, 1, 3))
sketch8.addConstraint(Sketcher.Constraint("Diameter", 0, Q("2 mm")))
sketch8.addConstraint(Sketcher.Constraint("DistanceY", 1, 3, 0, 3, Q("6 mm")))
sketch8.addConstraint(Sketcher.Constraint("DistanceX", -1, 1, 0, 3, Q("2.5 mm")))
sketch8.addConstraint(Sketcher.Constraint("DistanceY", -1, 1, 0, 3, Q("54.57787 mm")))
sketch8.setExpression("Constraints[2]", "Params.sketch8_diameter")
pocket5 = body.newObject("PartDesign::Pocket", "Pocket004")
pocket5.Profile = sketch8
pocket5.setExpression("Length", "Params.pocket5_length")
doc.recompute()

mirrored5 = body.newObject("PartDesign::Mirrored", "Mirrored004")
mirrored5.Originals = [pocket5]
mirrored5.MirrorPlane = (doc.getObject("YZ_Plane"), [""])
body.Tip = mirrored5

# Sketch on XZ plane
sketch9 = body.newObject("Sketcher::SketchObject", "Sketch008")
sketch9.AttachmentSupport = (doc.getObject("XZ_Plane"), [""])
sketch9.MapMode = "FlatFace"
sketch9.AttachmentOffset = App.Placement(App.Vector(0, 0, -10.5), App.Rotation())
sketch9.addGeometry(Part.Circle(App.Vector(52.5, 2.5, 0), App.Vector(0, 0, 1), 1), False)
sketch9.addGeometry(Part.Circle(App.Vector(41.5, 2.5, 0), App.Vector(0, 0, 1), 1), False)
sketch9.addConstraint(Sketcher.Constraint("Equal", 0, 1))
sketch9.addConstraint(Sketcher.Constraint("Horizontal", 0, 3, 1, 3))
sketch9.addConstraint(Sketcher.Constraint("Diameter", 0, Q("2 mm")))
sketch9.addConstraint(Sketcher.Constraint("DistanceX", 1, 3, 0, 3, Q("11 mm")))
sketch9.addConstraint(Sketcher.Constraint("DistanceX", -1, 1, 0, 3, Q("52.5 mm")))
sketch9.addConstraint(Sketcher.Constraint("DistanceY", -1, 1, 0, 3, Q("2.5 mm")))
sketch9.setExpression("Constraints[2]", "Params.sketch9_diameter")
pocket6 = body.newObject("PartDesign::Pocket", "Pocket005")
pocket6.Profile = sketch9
pocket6.setExpression("Length", "Params.pocket6_length")
pocket6.Reversed = True
doc.recompute()

mirrored6 = body.newObject("PartDesign::Mirrored", "Mirrored005")
mirrored6.Originals = [pocket6]
mirrored6.MirrorPlane = (doc.getObject("YZ_Plane"), [""])
body.Tip = mirrored6

doc.recompute()
